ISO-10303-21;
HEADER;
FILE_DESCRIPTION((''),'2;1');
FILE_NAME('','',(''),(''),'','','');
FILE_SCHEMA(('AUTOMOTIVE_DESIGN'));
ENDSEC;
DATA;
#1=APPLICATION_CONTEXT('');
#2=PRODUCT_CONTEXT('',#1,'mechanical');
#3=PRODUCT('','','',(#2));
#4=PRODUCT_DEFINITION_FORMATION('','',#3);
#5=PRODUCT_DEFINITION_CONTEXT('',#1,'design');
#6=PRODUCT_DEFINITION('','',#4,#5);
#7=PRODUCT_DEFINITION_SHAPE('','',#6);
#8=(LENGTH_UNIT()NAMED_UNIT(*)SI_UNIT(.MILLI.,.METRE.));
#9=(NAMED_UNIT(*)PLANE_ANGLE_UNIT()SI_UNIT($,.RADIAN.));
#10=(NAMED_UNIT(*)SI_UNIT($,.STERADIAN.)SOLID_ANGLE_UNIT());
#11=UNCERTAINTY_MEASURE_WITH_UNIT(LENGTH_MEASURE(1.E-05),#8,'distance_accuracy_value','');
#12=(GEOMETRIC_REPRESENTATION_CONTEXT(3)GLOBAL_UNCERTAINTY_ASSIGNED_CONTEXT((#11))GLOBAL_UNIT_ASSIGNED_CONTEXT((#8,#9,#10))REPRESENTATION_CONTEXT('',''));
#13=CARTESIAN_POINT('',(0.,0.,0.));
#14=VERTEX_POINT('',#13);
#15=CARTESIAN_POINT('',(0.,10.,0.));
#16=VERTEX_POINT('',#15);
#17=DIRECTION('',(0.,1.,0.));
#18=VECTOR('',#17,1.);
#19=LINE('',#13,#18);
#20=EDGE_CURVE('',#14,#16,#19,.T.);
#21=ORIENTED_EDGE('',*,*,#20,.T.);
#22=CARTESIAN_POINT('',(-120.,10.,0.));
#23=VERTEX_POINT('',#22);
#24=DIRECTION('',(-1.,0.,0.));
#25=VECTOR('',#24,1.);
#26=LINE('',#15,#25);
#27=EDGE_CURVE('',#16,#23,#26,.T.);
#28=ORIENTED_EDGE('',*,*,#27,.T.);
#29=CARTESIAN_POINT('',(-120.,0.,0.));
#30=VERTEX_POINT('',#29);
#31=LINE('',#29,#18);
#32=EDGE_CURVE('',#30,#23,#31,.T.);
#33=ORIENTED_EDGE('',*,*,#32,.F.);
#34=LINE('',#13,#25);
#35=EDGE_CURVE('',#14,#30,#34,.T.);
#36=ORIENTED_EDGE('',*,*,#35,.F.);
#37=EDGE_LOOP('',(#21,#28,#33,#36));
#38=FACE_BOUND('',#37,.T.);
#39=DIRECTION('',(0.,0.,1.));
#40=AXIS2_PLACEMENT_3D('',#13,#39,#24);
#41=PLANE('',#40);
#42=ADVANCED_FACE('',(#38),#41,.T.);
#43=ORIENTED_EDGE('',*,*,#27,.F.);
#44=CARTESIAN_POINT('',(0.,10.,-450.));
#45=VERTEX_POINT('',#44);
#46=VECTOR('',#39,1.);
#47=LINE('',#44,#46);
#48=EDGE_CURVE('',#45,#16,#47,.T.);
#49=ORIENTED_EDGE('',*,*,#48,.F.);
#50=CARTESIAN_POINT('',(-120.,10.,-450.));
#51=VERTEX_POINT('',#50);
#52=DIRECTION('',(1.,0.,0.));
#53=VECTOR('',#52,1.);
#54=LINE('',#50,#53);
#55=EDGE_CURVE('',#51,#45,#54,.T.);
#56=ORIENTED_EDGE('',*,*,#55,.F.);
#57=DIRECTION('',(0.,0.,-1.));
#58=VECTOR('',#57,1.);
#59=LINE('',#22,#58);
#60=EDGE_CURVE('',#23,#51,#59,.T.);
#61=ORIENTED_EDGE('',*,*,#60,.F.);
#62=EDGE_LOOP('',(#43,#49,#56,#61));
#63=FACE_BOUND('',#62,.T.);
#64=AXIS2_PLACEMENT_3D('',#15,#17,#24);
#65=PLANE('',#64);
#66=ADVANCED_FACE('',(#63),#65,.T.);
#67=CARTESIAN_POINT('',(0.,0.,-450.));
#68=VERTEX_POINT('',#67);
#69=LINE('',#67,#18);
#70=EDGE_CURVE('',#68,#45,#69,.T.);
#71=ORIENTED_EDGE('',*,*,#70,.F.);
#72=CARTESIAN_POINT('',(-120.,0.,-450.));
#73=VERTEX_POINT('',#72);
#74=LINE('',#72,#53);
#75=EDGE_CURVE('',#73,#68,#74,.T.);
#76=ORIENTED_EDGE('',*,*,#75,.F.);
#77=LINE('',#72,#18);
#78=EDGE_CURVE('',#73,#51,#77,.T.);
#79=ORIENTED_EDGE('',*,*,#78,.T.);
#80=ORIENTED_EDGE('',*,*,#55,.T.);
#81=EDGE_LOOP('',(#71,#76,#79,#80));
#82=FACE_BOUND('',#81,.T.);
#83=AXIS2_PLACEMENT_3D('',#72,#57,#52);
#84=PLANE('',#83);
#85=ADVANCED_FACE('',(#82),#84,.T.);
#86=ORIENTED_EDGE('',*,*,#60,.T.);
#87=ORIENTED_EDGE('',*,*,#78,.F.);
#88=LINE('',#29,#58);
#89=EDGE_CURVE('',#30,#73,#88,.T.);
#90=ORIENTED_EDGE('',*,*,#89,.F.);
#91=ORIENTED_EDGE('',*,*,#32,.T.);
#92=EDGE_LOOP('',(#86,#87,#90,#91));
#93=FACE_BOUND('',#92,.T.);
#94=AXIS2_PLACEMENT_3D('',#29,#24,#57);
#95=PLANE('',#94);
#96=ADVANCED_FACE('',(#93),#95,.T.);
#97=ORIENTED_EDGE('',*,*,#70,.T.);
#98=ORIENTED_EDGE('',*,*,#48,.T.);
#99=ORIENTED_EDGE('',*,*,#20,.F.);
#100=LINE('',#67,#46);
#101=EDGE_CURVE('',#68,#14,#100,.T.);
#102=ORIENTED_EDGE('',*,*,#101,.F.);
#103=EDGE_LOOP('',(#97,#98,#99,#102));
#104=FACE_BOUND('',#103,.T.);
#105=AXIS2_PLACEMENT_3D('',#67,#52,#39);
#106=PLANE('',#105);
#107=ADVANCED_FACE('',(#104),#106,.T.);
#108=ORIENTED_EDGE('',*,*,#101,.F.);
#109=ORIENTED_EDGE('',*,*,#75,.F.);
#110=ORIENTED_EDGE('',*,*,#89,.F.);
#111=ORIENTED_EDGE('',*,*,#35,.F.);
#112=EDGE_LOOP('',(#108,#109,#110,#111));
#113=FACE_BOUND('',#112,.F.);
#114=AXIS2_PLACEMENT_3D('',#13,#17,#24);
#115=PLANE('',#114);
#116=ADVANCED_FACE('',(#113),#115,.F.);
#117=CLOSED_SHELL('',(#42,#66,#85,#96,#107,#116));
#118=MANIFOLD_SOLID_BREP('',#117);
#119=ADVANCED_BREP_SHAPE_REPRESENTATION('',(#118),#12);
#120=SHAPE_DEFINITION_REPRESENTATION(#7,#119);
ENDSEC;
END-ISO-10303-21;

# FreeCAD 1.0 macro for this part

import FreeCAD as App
import Part
import Sketcher

doc = App.newDocument("Part")
body = doc.addObject("PartDesign::Body", "Body")

sketch1 = body.newObject("Sketcher::SketchObject", "Sketch")
sketch1.AttachmentSupport = (doc.getObject("XZ_Plane"), [""])
sketch1.MapMode = "FlatFace"
sketch1.addGeometry(Part.LineSegment(App.Vector(-120, 0, 0), App.Vector(0, 0, 0)), False)
sketch1.addGeometry(Part.LineSegment(App.Vector(0, 0, 0), App.Vector(0, -450, 0)), False)
sketch1.addGeometry(Part.LineSegment(App.Vector(0, -450, 0), App.Vector(-120, -450, 0)), False)
sketch1.addGeometry(Part.LineSegment(App.Vector(-120, -450, 0), App.Vector(-120, 0, 0)), False)
sketch1.addConstraint(Sketcher.Constraint("Coincident", 0, 2, 1, 1))
sketch1.addConstraint(Sketcher.Constraint("Coincident", 1, 2, 2, 1))
sketch1.addConstraint(Sketcher.Constraint("Coincident", 2, 2, 3, 1))
sketch1.addConstraint(Sketcher.Constraint("Coincident", 3, 2, 0, 1))
sketch1.addConstraint(Sketcher.Constraint("Horizontal", 0))
sketch1.addConstraint(Sketcher.Constraint("Vertical", 1))
sketch1.addConstraint(Sketcher.Constraint("Horizontal", 2))
sketch1.addConstraint(Sketcher.Constraint("Vertical", 3))
sketch1.addConstraint(Sketcher.Constraint("Coincident", 0, 2, -1, 1))
sketch1.addConstraint(Sketcher.Constraint("DistanceX", 0, 1, 0, 2, 120.0))
sketch1.addConstraint(Sketcher.Constraint("DistanceY", 1, 2, 1, 1, 450.0))
pad1 = body.newObject("PartDesign::Pad", "Pad")
pad1.Profile = sketch1
pad1.Length = 10
pad1.Reversed = True

doc.recompute()
